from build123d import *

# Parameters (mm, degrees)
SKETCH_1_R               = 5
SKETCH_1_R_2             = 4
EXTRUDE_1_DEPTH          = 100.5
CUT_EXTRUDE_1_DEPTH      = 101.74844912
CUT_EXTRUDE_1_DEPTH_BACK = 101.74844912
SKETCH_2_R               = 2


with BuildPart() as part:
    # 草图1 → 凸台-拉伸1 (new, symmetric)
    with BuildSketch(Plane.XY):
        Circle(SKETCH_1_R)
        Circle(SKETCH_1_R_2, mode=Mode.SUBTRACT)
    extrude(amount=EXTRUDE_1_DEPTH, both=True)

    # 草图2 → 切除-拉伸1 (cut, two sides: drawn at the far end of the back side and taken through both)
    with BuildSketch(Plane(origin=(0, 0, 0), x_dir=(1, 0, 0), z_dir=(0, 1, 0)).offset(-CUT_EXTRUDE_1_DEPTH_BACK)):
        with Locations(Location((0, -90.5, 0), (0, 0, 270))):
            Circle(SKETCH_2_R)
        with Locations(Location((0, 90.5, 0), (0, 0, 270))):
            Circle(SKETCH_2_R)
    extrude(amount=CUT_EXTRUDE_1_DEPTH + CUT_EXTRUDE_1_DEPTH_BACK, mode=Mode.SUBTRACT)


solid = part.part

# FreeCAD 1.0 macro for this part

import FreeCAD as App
import Part
import Sketcher

V = App.Vector
Q = App.Units.Quantity

doc = App.newDocument("Part")
body = doc.addObject("PartDesign::Body", "Body")

sketch1 = body.newObject("Sketcher::SketchObject", "Sketch")
sketch1.AttachmentSupport = (doc.getObject("XY_Plane"), [""])
sketch1.MapMode = "FlatFace"
sketch1.addGeometry(Part.Circle(V(0, 0, 0), V(0, 0, 1), 5), False)
sketch1.addGeometry(Part.Circle(V(0, 0, 0), V(0, 0, 1), 4), False)
sketch1.addConstraint(Sketcher.Constraint("Coincident", 0, 3, -1, 1))
sketch1.addConstraint(Sketcher.Constraint("Coincident", 1, 3, -1, 1))
sketch1.addConstraint(Sketcher.Constraint("Diameter", 0, Q("10 mm")))
sketch1.addConstraint(Sketcher.Constraint("Diameter", 1, Q("8 mm")))
pad1 = body.newObject("PartDesign::Pad", "Pad")
pad1.Profile = sketch1
pad1.Length = 201
pad1.Midplane = True

sketch2 = body.newObject("Sketcher::SketchObject", "Sketch001")
sketch2.AttachmentSupport = (doc.getObject("XZ_Plane"), [""])
sketch2.MapMode = "FlatFace"
sketch2.addGeometry(Part.Circle(V(0, 90.5, 0), V(0, 0, 1), 2), False)
sketch2.addGeometry(Part.Circle(V(0, -90.5, 0), V(0, 0, 1), 2), False)
sketch2.addConstraint(Sketcher.Constraint("Equal", 0, 1))
sketch2.addConstraint(Sketcher.Constraint("Symmetric", 0, 3, 1, 3, -1, 1))
sketch2.addConstraint(Sketcher.Constraint("PointOnObject", 0, 3, -2))
sketch2.addConstraint(Sketcher.Constraint("Diameter", 0, Q("4 mm")))
sketch2.addConstraint(Sketcher.Constraint("DistanceY", 1, 3, 0, 3, Q("181 mm")))
pocket1 = body.newObject("PartDesign::Pocket", "Pocket")
pocket1.Profile = sketch2
pocket1.Type = "ThroughAll"
pocket1.Midplane = True

doc.recompute()
